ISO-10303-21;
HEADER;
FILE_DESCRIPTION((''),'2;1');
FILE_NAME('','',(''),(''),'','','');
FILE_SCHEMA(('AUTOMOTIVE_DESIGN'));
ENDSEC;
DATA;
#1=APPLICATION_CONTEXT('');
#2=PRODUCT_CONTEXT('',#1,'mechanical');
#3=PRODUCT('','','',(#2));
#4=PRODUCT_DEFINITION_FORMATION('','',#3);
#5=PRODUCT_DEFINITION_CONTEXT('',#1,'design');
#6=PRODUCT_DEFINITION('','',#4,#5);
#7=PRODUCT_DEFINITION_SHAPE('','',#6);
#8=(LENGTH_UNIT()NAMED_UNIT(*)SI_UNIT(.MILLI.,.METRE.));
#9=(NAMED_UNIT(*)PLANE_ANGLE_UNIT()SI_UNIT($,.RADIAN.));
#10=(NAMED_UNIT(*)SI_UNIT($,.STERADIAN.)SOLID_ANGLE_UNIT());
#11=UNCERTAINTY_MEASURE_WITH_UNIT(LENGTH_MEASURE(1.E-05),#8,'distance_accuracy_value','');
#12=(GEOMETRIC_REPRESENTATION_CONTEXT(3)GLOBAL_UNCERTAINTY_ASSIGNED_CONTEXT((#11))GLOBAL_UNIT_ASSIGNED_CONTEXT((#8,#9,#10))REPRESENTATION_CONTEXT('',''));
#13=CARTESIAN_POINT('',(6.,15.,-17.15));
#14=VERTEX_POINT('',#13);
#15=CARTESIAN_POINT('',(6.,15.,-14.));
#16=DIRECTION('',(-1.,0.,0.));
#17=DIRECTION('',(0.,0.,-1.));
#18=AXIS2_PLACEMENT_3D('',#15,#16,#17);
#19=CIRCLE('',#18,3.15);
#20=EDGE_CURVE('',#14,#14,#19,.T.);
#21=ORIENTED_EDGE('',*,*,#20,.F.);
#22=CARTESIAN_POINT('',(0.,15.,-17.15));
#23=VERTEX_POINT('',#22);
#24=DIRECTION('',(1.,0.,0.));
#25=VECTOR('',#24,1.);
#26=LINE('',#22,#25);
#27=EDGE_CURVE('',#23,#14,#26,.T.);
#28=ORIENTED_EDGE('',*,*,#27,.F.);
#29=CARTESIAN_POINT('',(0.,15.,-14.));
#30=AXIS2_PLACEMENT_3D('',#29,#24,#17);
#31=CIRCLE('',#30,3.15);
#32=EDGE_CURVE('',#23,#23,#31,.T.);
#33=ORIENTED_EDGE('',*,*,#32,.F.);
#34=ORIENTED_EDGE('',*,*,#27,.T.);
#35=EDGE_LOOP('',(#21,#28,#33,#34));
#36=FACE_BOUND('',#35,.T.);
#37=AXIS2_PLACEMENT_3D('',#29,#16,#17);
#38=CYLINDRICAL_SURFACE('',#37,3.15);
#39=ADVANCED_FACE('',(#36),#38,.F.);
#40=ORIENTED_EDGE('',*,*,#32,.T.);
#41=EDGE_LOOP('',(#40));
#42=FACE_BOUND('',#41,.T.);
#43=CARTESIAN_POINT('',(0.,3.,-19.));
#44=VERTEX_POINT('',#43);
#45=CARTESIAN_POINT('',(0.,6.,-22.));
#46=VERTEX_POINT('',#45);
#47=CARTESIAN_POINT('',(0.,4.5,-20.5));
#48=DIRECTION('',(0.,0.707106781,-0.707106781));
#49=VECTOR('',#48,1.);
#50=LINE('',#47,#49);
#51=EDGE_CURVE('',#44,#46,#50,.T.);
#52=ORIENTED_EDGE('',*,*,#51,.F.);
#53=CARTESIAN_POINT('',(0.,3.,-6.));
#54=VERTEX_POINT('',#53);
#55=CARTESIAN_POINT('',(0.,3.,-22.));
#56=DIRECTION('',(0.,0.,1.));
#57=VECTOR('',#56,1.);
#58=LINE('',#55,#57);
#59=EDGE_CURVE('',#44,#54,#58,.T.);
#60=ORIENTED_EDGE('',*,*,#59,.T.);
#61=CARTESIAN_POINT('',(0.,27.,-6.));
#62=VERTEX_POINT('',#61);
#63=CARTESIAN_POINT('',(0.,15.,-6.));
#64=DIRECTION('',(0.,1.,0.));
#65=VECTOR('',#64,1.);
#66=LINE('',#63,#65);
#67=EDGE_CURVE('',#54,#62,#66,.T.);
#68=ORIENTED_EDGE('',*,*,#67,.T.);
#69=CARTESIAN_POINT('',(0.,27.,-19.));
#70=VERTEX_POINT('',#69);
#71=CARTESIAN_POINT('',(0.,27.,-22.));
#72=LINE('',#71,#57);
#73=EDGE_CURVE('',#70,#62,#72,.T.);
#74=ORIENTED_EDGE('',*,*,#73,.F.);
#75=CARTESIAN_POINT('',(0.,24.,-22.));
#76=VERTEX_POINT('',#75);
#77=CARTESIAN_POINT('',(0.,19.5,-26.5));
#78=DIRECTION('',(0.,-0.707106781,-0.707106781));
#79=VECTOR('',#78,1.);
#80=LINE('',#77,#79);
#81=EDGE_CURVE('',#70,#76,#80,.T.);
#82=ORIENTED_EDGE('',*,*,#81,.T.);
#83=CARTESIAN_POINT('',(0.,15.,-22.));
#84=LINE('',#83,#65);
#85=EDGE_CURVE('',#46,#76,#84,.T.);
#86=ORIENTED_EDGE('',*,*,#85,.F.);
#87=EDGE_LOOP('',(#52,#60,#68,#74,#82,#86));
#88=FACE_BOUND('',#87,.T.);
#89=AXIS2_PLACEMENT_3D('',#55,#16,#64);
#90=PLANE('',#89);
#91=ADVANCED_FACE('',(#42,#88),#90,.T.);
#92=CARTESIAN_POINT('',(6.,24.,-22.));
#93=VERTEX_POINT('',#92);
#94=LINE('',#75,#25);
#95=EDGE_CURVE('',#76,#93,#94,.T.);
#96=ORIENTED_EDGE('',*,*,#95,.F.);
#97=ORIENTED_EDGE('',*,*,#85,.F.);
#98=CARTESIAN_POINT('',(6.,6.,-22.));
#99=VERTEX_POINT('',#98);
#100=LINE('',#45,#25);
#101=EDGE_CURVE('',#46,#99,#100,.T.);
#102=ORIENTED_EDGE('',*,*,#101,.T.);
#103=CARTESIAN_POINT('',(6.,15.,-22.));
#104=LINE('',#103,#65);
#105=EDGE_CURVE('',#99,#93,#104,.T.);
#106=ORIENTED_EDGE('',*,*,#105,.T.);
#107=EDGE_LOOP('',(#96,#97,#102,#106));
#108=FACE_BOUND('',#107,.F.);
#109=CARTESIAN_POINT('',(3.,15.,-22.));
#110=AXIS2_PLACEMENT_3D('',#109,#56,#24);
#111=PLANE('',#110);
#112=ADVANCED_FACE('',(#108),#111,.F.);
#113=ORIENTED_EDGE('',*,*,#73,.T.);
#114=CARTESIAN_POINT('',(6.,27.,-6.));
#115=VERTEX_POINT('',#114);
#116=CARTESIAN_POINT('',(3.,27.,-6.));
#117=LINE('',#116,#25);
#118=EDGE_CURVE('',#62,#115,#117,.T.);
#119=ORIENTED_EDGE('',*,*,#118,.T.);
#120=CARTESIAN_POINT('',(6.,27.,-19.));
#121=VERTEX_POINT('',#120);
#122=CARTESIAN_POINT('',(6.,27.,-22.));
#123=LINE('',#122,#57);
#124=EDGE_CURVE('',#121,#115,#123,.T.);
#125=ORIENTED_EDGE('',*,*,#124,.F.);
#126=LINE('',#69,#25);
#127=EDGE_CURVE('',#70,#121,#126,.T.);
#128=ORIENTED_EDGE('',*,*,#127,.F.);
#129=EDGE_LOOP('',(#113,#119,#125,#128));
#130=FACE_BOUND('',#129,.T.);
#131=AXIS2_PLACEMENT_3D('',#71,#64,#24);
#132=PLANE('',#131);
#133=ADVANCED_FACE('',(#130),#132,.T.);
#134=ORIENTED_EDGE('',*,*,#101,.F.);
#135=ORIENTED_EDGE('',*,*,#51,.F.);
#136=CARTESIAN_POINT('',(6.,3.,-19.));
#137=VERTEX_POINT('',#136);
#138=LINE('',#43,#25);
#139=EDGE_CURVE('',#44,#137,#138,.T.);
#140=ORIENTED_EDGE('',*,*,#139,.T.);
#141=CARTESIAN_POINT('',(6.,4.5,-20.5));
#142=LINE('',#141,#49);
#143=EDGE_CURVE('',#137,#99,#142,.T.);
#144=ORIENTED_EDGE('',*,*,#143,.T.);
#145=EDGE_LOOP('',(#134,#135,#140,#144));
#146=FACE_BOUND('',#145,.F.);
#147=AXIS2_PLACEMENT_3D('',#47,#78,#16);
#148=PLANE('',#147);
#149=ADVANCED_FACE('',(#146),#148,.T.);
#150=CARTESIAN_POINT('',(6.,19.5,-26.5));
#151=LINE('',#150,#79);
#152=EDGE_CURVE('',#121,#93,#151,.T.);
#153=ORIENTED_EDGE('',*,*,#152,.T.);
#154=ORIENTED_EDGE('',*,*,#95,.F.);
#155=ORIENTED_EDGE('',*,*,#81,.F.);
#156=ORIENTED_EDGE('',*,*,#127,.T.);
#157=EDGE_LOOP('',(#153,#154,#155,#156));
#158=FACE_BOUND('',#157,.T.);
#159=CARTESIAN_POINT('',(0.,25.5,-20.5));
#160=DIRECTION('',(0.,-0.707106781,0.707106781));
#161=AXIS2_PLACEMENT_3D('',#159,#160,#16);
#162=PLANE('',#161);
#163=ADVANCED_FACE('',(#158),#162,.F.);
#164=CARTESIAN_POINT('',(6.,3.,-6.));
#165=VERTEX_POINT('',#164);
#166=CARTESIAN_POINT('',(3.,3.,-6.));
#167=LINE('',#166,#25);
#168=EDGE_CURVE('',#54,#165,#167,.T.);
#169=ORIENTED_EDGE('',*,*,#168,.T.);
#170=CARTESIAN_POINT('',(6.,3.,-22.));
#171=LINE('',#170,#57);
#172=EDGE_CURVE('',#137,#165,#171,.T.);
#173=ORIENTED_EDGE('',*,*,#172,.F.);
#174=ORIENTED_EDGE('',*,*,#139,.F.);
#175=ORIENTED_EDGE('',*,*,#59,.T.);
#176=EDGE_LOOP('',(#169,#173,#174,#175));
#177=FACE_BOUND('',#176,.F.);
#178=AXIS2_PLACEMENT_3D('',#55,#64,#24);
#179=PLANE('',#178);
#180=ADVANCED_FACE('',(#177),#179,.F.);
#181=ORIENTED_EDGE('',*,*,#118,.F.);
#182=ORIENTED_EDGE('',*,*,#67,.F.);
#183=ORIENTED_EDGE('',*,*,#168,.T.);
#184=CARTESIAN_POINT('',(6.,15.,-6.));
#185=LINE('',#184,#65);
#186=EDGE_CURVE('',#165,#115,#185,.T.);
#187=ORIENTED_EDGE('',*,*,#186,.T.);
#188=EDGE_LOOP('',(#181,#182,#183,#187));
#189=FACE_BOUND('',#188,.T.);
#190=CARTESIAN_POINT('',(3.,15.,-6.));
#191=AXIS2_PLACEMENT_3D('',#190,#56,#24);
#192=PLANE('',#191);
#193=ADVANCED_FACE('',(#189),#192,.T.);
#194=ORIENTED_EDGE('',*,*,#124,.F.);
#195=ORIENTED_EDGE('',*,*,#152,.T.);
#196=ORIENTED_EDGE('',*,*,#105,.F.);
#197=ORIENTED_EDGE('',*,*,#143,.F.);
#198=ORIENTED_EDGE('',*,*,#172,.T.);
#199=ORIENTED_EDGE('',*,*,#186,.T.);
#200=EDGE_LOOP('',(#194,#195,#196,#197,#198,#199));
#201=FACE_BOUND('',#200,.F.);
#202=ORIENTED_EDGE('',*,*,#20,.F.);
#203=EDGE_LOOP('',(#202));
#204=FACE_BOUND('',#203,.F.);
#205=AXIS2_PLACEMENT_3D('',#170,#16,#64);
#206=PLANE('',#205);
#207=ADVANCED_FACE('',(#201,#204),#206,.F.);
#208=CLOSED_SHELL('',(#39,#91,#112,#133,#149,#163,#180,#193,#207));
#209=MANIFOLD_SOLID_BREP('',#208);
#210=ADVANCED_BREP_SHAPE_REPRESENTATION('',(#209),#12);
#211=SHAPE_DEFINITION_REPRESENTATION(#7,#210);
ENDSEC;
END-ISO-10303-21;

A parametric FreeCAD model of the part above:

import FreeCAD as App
import Part
import Sketcher
from FreeCAD import Vector
Q = App.Units.Quantity


def edges_at(feature, points):
    """Names of the edges that pass closest to the given points."""
    edges = feature.Shape.Edges
    near = lambda p: min(range(len(edges)), key=lambda i: edges[i].distToShape(Part.Vertex(*p))[0])
    return sorted({f"Edge{near(p) + 1}" for p in points})

doc = App.newDocument("Part")
body = doc.addObject("PartDesign::Body", "Body")

# Sketch on YZ plane
sketch1 = body.newObject("Sketcher::SketchObject", "Sketch")
sketch1.AttachmentSupport = (doc.getObject("YZ_Plane"), [""])
sketch1.MapMode = "FlatFace"
sketch1.addGeometry(Part.Circle(Vector(15, -14, 0), Vector(0, 0, 1), 3.1), False)
sketch1.addConstraint([
    Sketcher.Constraint("Diameter", 0, Q("6.3 mm")),
    Sketcher.Constraint("DistanceX", -1, 1, 0, 3, Q("15 mm")),
    Sketcher.Constraint("DistanceY", 0, 3, -1, 1, Q("14 mm")),
])
pad1 = body.newObject("PartDesign::Pad", "Pad")
pad1.Profile = sketch1
pad1.Length = 13
body2 = doc.addObject("PartDesign::Body", "Body001")

# Sketch on XY plane
sketch2 = body2.newObject("Sketcher::SketchObject", "Sketch001")
sketch2.AttachmentSupport = (doc.getObject("XY_Plane001"), [""])
sketch2.MapMode = "FlatFace"
sketch2.AttachmentOffset = App.Placement(Vector(0, 0, -22), App.Rotation())
sketch2.addGeometry([
    Part.LineSegment(Vector(0, 27, 0), Vector(0, 3, 0)),
    Part.LineSegment(Vector(0, 3, 0), Vector(6, 3, 0)),
    Part.LineSegment(Vector(6, 3, 0), Vector(6, 27, 0)),
    Part.LineSegment(Vector(6, 27, 0), Vector(0, 27, 0)),
], False)
sketch2.addConstraint([
    Sketcher.Constraint("Coincident", 0, 2, 1, 1),
    Sketcher.Constraint("Coincident", 1, 2, 2, 1),
    Sketcher.Constraint("Coincident", 2, 2, 3, 1),
    Sketcher.Constraint("Coincident", 3, 2, 0, 1),
    Sketcher.Constraint("Vertical", 0),
    Sketcher.Constraint("Horizontal", 1),
    Sketcher.Constraint("Vertical", 2),
    Sketcher.Constraint("Horizontal", 3),
    Sketcher.Constraint("PointOnObject", 0, 2, -2),
    Sketcher.Constraint("DistanceX", 1, 1, 1, 2, Q("6 mm")),
    Sketcher.Constraint("DistanceY", 0, 2, 0, 1, Q("24 mm")),
    Sketcher.Constraint("DistanceY", -1, 1, 0, 2, Q("3 mm")),
])
pad2 = body2.newObject("PartDesign::Pad", "Pad001")
pad2.Profile = sketch2
pad2.Length = 16
doc.recompute()

chamfer = body2.newObject("PartDesign::Chamfer", "Chamfer")
chamfer.Base = (pad2, edges_at(pad2, [(3, 3, -22), (3, 27, -22)]))
chamfer.Size = 3
doc.recompute()

boolean = body2.newObject("PartDesign::Boolean", "Boolean")
boolean.Type = "Cut"
boolean.addObjects([body])

doc.recompute()
